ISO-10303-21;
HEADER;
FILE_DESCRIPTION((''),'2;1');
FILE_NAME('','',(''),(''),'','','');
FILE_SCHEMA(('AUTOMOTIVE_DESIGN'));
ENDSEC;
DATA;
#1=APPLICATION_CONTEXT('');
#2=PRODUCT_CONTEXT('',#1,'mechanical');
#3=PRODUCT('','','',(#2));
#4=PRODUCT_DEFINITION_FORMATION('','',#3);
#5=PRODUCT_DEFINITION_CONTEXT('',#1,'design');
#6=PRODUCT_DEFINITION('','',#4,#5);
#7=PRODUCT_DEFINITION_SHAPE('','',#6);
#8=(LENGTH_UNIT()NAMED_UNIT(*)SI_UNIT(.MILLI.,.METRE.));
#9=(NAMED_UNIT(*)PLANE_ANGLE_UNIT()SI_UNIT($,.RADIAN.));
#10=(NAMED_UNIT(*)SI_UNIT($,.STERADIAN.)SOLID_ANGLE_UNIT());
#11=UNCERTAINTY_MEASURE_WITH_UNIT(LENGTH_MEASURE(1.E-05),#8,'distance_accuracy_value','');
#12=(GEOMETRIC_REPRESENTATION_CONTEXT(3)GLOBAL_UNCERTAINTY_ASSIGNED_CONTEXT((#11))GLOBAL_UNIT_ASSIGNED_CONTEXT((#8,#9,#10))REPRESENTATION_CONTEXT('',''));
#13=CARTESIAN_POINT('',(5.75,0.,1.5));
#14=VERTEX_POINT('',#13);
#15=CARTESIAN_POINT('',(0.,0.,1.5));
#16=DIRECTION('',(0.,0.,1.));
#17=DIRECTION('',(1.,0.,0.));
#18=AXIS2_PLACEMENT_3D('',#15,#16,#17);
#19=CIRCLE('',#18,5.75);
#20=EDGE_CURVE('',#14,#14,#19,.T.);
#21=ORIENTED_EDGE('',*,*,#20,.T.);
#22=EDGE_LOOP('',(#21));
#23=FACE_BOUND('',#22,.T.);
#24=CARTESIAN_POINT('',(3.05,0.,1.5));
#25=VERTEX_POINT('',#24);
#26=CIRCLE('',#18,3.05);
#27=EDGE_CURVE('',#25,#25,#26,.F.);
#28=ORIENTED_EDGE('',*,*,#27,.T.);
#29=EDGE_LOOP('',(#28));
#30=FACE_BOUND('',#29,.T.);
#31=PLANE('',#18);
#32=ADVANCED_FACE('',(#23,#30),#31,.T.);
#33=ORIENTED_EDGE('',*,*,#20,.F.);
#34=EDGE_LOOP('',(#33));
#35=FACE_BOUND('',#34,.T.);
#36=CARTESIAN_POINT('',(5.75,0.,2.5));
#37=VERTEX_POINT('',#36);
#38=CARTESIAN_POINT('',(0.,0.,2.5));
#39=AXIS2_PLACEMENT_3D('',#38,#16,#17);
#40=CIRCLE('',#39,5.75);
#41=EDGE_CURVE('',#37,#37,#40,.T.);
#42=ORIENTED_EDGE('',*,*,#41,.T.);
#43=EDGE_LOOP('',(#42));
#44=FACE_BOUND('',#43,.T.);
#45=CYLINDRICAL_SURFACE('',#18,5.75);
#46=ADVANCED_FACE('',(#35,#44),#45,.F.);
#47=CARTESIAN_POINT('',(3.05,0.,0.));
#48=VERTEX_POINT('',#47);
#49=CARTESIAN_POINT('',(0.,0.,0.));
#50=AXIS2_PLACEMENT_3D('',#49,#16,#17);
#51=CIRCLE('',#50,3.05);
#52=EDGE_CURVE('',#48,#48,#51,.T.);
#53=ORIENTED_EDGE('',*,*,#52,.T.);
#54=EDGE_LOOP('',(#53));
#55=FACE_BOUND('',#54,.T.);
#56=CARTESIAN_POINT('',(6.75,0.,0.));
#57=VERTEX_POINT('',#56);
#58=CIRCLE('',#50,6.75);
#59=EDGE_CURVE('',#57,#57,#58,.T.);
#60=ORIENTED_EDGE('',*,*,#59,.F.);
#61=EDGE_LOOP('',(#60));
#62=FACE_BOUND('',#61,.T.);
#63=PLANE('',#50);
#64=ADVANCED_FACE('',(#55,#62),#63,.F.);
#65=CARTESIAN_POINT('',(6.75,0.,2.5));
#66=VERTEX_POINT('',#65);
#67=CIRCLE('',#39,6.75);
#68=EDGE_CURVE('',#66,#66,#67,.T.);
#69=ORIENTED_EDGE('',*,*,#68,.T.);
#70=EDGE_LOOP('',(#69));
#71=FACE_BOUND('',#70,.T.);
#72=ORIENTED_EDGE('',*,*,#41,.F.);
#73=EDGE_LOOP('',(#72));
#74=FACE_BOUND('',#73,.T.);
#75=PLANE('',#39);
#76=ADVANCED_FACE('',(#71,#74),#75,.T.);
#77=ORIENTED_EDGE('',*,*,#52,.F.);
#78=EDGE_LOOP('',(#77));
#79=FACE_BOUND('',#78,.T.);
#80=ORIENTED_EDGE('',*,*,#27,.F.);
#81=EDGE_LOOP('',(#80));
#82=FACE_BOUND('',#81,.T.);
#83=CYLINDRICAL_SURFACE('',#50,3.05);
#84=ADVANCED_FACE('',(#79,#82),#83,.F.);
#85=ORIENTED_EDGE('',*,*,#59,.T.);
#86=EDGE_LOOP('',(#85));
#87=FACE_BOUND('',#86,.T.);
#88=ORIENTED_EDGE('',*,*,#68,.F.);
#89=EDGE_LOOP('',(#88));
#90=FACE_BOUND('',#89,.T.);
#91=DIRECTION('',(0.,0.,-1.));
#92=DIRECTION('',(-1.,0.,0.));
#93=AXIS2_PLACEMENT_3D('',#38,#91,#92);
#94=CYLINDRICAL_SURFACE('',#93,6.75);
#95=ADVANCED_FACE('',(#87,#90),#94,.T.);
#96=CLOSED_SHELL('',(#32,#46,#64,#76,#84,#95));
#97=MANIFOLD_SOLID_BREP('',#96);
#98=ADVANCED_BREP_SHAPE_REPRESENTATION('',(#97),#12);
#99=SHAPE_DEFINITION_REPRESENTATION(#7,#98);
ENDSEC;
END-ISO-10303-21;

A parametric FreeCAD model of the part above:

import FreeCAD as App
import Part
import Sketcher

doc = App.newDocument("Part")
body = doc.addObject("PartDesign::Body", "Body")

# Sketch on XY plane
sketch1 = doc.addObject("Sketcher::SketchObject", "Sketch")
body.addObject(sketch1)
sketch1.AttachmentSupport = (doc.XY_Plane, [""])
sketch1.MapMode = "FlatFace"
sketch1.addGeometry(Part.Circle(App.Vector(0, 0, 0), App.Vector(0, 0, 1), 6.75), False)
sketch1.addConstraint(Sketcher.Constraint("Coincident", 0, 3, -1, 1))
sketch1.addConstraint(Sketcher.Constraint("Diameter", 0, 13.5))
pad1 = doc.addObject("PartDesign::Pad", "Pad")
body.addObject(pad1)
pad1.Profile = sketch1
pad1.Length = 2.5

# Sketch on XY plane
sketch2 = doc.addObject("Sketcher::SketchObject", "Sketch001")
body.addObject(sketch2)
sketch2.AttachmentSupport = (doc.XY_Plane, [""])
sketch2.MapMode = "FlatFace"
sketch2.AttachmentOffset = App.Placement(App.Vector(0, 0, 2.5), App.Rotation())
sketch2.addGeometry(Part.Circle(App.Vector(0, 0, 0), App.Vector(0, 0, 1), 3.05), False)
sketch2.addConstraint(Sketcher.Constraint("Coincident", 0, 3, -1, 1))
sketch2.addConstraint(Sketcher.Constraint("Diameter", 0, 6.1))
pocket1 = doc.addObject("PartDesign::Pocket", "Pocket")
body.addObject(pocket1)
pocket1.Profile = sketch2
pocket1.Type = "ThroughAll"

# Sketch on XY plane
sketch3 = doc.addObject("Sketcher::SketchObject", "Sketch002")
body.addObject(sketch3)
sketch3.AttachmentSupport = (doc.XY_Plane, [""])
sketch3.MapMode = "FlatFace"
sketch3.AttachmentOffset = App.Placement(App.Vector(0, 0, 2.5), App.Rotation())
sketch3.addGeometry(Part.Circle(App.Vector(0, 0, 0), App.Vector(0, 0, 1), 5.75), False)
sketch3.addConstraint(Sketcher.Constraint("Coincident", 0, 3, -1, 1))
sketch3.addConstraint(Sketcher.Constraint("Diameter", 0, 11.5))
pocket2 = doc.addObject("PartDesign::Pocket", "Pocket001")
body.addObject(pocket2)
pocket2.Profile = sketch3
pocket2.Length = 1

doc.recompute()
